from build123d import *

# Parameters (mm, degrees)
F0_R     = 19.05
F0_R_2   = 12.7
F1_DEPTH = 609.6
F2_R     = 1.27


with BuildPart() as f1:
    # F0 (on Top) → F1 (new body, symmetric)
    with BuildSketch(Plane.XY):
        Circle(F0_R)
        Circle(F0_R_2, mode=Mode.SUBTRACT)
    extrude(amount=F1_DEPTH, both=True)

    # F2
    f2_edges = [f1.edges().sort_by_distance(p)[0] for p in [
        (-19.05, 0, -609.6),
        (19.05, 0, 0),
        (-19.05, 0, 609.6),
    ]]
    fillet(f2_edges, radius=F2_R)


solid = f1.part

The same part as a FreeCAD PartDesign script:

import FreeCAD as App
import Part
import Sketcher
from FreeCAD import Vector
Q = App.Units.Quantity


def edges_at(feature, points):
    """Names of the edges that pass closest to the given points."""
    edges = feature.Shape.Edges
    near = lambda p: min(range(len(edges)), key=lambda i: edges[i].distToShape(Part.Vertex(*p))[0])
    return sorted({f"Edge{near(p) + 1}" for p in points})

doc = App.newDocument("Part")
body = doc.addObject("PartDesign::Body", "Body")

sketch1 = doc.addObject("Sketcher::SketchObject", "Sketch")
body.addObject(sketch1)
sketch1.AttachmentSupport = (doc.XY_Plane, [""])
sketch1.MapMode = "FlatFace"
sketch1.addGeometry([
    Part.Circle(Vector(0, 0, 0), Vector(0, 0, 1), 19.05),
    Part.Circle(Vector(0, 0, 0), Vector(0, 0, 1), 12.7),
], False)
sketch1.addConstraint([
    Sketcher.Constraint("Coincident", 0, 3, -1, 1),
    Sketcher.Constraint("Coincident", 1, 3, -1, 1),
    Sketcher.Constraint("Diameter", 1, Q("1 in")),
    Sketcher.Constraint("Diameter", 0, Q("1.5 in")),
])
pad1 = doc.addObject("PartDesign::Pad", "Pad")
body.addObject(pad1)
pad1.Profile = sketch1
pad1.Length = Q("48 in")
pad1.Midplane = True
doc.recompute()

fillet = doc.addObject("PartDesign::Fillet", "Fillet")
body.addObject(fillet)
fillet.Base = (pad1, edges_at(pad1, [(-19.05, 0, -609.6), (19.05, 0, 0), (-19.05, 0, 609.6)]))
fillet.Radius = Q("0.05 in")

doc.recompute()
